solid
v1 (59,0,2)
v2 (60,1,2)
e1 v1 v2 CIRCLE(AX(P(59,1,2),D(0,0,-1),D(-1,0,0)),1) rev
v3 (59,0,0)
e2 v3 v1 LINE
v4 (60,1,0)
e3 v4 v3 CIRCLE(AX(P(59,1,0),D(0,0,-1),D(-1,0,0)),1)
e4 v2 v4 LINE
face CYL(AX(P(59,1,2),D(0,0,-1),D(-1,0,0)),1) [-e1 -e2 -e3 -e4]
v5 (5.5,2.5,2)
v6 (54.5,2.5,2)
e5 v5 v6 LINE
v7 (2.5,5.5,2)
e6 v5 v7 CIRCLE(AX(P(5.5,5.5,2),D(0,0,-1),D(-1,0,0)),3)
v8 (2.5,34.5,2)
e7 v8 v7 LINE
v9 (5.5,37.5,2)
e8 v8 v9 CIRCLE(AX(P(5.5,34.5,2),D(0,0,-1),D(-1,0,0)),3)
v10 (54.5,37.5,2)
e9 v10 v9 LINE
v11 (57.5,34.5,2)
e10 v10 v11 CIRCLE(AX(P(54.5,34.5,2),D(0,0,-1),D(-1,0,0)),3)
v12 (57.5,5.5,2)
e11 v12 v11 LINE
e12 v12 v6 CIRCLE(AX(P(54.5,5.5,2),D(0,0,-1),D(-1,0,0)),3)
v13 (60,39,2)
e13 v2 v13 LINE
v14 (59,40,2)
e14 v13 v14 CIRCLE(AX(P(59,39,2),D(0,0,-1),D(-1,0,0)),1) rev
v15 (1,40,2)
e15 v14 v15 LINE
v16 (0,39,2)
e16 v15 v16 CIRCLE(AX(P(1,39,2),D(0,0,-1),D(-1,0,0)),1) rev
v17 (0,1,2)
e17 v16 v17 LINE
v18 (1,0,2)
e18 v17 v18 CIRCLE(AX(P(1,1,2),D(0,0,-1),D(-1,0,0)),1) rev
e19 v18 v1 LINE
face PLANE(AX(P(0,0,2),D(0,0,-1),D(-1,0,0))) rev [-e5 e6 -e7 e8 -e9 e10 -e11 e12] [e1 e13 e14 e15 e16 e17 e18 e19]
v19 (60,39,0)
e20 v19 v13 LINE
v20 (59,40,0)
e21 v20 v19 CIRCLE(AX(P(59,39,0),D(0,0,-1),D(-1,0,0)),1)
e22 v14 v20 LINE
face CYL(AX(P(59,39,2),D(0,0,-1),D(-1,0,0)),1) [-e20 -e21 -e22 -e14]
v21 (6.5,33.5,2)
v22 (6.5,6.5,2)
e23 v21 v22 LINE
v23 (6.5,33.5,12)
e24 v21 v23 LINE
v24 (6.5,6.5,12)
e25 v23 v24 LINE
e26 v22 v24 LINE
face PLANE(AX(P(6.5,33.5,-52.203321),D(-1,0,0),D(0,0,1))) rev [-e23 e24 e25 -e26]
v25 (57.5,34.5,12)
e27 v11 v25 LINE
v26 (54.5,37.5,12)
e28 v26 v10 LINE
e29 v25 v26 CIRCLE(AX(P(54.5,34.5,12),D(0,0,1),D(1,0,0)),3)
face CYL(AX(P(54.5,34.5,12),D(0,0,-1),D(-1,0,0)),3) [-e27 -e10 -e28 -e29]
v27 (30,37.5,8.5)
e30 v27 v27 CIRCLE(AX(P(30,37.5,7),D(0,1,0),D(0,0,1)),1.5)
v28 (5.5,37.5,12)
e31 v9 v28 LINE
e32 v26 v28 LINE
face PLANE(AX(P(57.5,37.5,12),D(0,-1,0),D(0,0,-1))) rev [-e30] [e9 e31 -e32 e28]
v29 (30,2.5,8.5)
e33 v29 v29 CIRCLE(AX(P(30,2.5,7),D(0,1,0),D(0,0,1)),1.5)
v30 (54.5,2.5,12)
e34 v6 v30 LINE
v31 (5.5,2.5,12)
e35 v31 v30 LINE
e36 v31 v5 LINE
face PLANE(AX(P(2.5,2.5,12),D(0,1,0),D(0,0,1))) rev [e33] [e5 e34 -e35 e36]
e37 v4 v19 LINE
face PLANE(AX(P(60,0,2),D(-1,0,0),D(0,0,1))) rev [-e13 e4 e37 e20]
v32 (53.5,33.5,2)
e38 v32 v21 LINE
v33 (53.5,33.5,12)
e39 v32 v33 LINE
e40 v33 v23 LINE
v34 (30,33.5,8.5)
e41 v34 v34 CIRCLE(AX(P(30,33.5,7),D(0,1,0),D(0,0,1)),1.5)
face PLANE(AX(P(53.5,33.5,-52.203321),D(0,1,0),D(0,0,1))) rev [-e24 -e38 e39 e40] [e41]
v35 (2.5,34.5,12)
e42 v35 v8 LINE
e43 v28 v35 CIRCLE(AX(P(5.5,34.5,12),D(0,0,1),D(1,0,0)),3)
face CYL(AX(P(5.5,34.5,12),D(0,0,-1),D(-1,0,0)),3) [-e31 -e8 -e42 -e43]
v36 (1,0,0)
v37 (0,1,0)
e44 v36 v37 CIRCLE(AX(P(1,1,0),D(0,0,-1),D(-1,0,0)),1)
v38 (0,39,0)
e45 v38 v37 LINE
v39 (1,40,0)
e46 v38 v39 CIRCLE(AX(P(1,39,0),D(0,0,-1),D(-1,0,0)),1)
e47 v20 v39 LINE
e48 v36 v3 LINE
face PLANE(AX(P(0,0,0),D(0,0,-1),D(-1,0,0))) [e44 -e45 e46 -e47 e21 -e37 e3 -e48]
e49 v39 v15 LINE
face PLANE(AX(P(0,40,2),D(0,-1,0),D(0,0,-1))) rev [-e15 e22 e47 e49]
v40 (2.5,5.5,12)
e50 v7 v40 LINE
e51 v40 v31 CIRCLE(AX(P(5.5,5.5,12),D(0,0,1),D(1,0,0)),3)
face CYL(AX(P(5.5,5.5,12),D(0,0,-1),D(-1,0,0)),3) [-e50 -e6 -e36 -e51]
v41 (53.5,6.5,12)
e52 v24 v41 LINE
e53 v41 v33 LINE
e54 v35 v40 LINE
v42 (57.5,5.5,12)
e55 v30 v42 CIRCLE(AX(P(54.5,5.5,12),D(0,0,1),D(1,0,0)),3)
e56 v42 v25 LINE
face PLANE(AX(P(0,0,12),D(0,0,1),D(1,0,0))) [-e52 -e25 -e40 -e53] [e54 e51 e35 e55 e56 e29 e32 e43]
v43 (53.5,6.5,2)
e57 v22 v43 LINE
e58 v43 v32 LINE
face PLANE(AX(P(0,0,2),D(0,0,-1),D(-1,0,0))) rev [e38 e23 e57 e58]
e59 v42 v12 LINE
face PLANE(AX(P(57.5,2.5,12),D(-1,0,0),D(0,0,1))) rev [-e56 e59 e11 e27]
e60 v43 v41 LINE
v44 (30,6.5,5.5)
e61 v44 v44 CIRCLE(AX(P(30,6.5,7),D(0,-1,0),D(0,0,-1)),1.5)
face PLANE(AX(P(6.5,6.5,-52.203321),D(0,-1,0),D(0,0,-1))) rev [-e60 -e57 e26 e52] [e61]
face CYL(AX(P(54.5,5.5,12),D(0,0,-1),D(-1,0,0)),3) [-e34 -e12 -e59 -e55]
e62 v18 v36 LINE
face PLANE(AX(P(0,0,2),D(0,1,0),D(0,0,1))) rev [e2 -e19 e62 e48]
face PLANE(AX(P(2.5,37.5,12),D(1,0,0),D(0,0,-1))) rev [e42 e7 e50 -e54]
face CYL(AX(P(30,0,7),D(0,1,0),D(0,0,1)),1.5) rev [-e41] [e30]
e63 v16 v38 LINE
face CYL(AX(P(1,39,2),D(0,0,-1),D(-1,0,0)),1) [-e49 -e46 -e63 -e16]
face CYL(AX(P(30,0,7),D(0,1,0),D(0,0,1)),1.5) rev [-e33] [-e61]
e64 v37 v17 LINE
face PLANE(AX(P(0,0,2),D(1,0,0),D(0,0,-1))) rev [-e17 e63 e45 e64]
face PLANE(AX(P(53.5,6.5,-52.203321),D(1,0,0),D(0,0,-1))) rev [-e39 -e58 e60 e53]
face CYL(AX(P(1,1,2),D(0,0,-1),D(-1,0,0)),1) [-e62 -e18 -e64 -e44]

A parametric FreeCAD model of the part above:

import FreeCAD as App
import Part
import Sketcher
Q = App.Units.Quantity


def edges_at(feature, points):
    """Names of the edges that pass closest to the given points."""
    edges = feature.Shape.Edges
    near = lambda p: min(range(len(edges)), key=lambda i: edges[i].distToShape(Part.Vertex(*p))[0])
    return sorted({f"Edge{near(p) + 1}" for p in points})

doc = App.newDocument("Part")
body = doc.addObject("PartDesign::Body", "Body")

sketch1 = body.newObject("Sketcher::SketchObject", "Sketch")
sketch1.AttachmentSupport = (doc.getObject("XY_Plane"), [""])
sketch1.MapMode = "FlatFace"
sketch1.addGeometry(Part.LineSegment(App.Vector(0, 40, 0), App.Vector(0, 0, 0)), False)
sketch1.addGeometry(Part.LineSegment(App.Vector(0, 0, 0), App.Vector(60, 0, 0)), False)
sketch1.addGeometry(Part.LineSegment(App.Vector(60, 0, 0), App.Vector(60, 40, 0)), False)
sketch1.addGeometry(Part.LineSegment(App.Vector(60, 40, 0), App.Vector(0, 40, 0)), False)
sketch1.addConstraint(Sketcher.Constraint("Coincident", 0, 2, 1, 1))
sketch1.addConstraint(Sketcher.Constraint("Coincident", 1, 2, 2, 1))
sketch1.addConstraint(Sketcher.Constraint("Coincident", 2, 2, 3, 1))
sketch1.addConstraint(Sketcher.Constraint("Coincident", 3, 2, 0, 1))
sketch1.addConstraint(Sketcher.Constraint("Vertical", 0))
sketch1.addConstraint(Sketcher.Constraint("Horizontal", 1))
sketch1.addConstraint(Sketcher.Constraint("Vertical", 2))
sketch1.addConstraint(Sketcher.Constraint("Horizontal", 3))
sketch1.addConstraint(Sketcher.Constraint("Coincident", 0, 2, -1, 1))
sketch1.addConstraint(Sketcher.Constraint("DistanceX", 1, 1, 1, 2, Q("60 mm")))
sketch1.addConstraint(Sketcher.Constraint("DistanceY", 0, 2, 0, 1, Q("40 mm")))
pad1 = body.newObject("PartDesign::Pad", "Pad")
pad1.Profile = sketch1
pad1.Length = 2

sketch2 = body.newObject("Sketcher::SketchObject", "Sketch001")
sketch2.AttachmentSupport = (doc.getObject("XY_Plane"), [""])
sketch2.MapMode = "FlatFace"
sketch2.AttachmentOffset = App.Placement(App.Vector(0, 0, 2), App.Rotation())
sketch2.addGeometry(Part.LineSegment(App.Vector(2, 38, 0), App.Vector(2, 2, 0)), False)
sketch2.addGeometry(Part.LineSegment(App.Vector(2, 2, 0), App.Vector(58, 2, 0)), False)
sketch2.addGeometry(Part.LineSegment(App.Vector(58, 2, 0), App.Vector(58, 38, 0)), False)
sketch2.addGeometry(Part.LineSegment(App.Vector(58, 38, 0), App.Vector(2, 38, 0)), False)
sketch2.addConstraint(Sketcher.Constraint("Coincident", 0, 2, 1, 1))
sketch2.addConstraint(Sketcher.Constraint("Coincident", 1, 2, 2, 1))
sketch2.addConstraint(Sketcher.Constraint("Coincident", 2, 2, 3, 1))
sketch2.addConstraint(Sketcher.Constraint("Coincident", 3, 2, 0, 1))
sketch2.addConstraint(Sketcher.Constraint("Vertical", 0))
sketch2.addConstraint(Sketcher.Constraint("Horizontal", 1))
sketch2.addConstraint(Sketcher.Constraint("Vertical", 2))
sketch2.addConstraint(Sketcher.Constraint("Horizontal", 3))
sketch2.addConstraint(Sketcher.Constraint("DistanceX", 1, 1, 1, 2, Q("55 mm")))
sketch2.addConstraint(Sketcher.Constraint("DistanceY", 0, 2, 0, 1, Q("35 mm")))
sketch2.addConstraint(Sketcher.Constraint("DistanceX", -1, 1, 0, 2, Q("2.5 mm")))
sketch2.addConstraint(Sketcher.Constraint("DistanceY", -1, 1, 0, 2, Q("2.5 mm")))
pad2 = body.newObject("PartDesign::Pad", "Pad001")
pad2.Profile = sketch2
pad2.Length = 10
doc.recompute()

fillet = body.newObject("PartDesign::Fillet", "Fillet")
fillet.Base = (pad2, edges_at(pad2, [
    (57.5, 37.5, 7),
    (2.5, 37.5, 7),
    (2.5, 2.5, 7),
    (57.5, 2.5, 7),
]))
fillet.Radius = 3
doc.recompute()

fillet2 = body.newObject("PartDesign::Fillet", "Fillet001")
fillet2.Base = (fillet, edges_at(fillet, [
    (0, 40, 1),
    (60, 40, 1),
    (60, 0, 1),
    (0, 0, 1),
]))
fillet2.Radius = 1

sketch3 = body.newObject("Sketcher::SketchObject", "Sketch002")
sketch3.AttachmentSupport = (doc.getObject("XY_Plane"), [""])
sketch3.MapMode = "FlatFace"
sketch3.AttachmentOffset = App.Placement(App.Vector(0, 0, 12), App.Rotation())
sketch3.addGeometry(Part.LineSegment(App.Vector(6, 34, 0), App.Vector(6, 6, 0)), False)
sketch3.addGeometry(Part.LineSegment(App.Vector(6, 6, 0), App.Vector(54, 6, 0)), False)
sketch3.addGeometry(Part.LineSegment(App.Vector(54, 6, 0), App.Vector(54, 34, 0)), False)
sketch3.addGeometry(Part.LineSegment(App.Vector(54, 34, 0), App.Vector(6, 34, 0)), False)
sketch3.addConstraint(Sketcher.Constraint("Coincident", 0, 2, 1, 1))
sketch3.addConstraint(Sketcher.Constraint("Coincident", 1, 2, 2, 1))
sketch3.addConstraint(Sketcher.Constraint("Coincident", 2, 2, 3, 1))
sketch3.addConstraint(Sketcher.Constraint("Coincident", 3, 2, 0, 1))
sketch3.addConstraint(Sketcher.Constraint("Vertical", 0))
sketch3.addConstraint(Sketcher.Constraint("Horizontal", 1))
sketch3.addConstraint(Sketcher.Constraint("Vertical", 2))
sketch3.addConstraint(Sketcher.Constraint("Horizontal", 3))
sketch3.addConstraint(Sketcher.Constraint("DistanceX", 1, 1, 1, 2, Q("47 mm")))
sketch3.addConstraint(Sketcher.Constraint("DistanceY", 0, 2, 0, 1, Q("27 mm")))
sketch3.addConstraint(Sketcher.Constraint("DistanceX", -1, 1, 0, 2, Q("6.5 mm")))
sketch3.addConstraint(Sketcher.Constraint("DistanceY", -1, 1, 0, 2, Q("6.5 mm")))
pocket1 = body.newObject("PartDesign::Pocket", "Pocket")
pocket1.Profile = sketch3
pocket1.Length = 10

sketch4 = body.newObject("Sketcher::SketchObject", "Sketch003")
sketch4.AttachmentSupport = (doc.getObject("XZ_Plane"), [""])
sketch4.MapMode = "FlatFace"
sketch4.AttachmentOffset = App.Placement(App.Vector(0, 0, -37.5), App.Rotation())
sketch4.addGeometry(Part.Circle(App.Vector(30, 7, 0), App.Vector(0, 0, 1), 1.5), False)
sketch4.addConstraint(Sketcher.Constraint("Diameter", 0, Q("3 mm")))
sketch4.addConstraint(Sketcher.Constraint("DistanceX", -1, 1, 0, 3, Q("30 mm")))
sketch4.addConstraint(Sketcher.Constraint("DistanceY", -1, 1, 0, 3, Q("7 mm")))
pocket2 = body.newObject("PartDesign::Pocket", "Pocket001")
pocket2.Profile = sketch4
pocket2.Type = "ThroughAll"
pocket2.Reversed = True

doc.recompute()
